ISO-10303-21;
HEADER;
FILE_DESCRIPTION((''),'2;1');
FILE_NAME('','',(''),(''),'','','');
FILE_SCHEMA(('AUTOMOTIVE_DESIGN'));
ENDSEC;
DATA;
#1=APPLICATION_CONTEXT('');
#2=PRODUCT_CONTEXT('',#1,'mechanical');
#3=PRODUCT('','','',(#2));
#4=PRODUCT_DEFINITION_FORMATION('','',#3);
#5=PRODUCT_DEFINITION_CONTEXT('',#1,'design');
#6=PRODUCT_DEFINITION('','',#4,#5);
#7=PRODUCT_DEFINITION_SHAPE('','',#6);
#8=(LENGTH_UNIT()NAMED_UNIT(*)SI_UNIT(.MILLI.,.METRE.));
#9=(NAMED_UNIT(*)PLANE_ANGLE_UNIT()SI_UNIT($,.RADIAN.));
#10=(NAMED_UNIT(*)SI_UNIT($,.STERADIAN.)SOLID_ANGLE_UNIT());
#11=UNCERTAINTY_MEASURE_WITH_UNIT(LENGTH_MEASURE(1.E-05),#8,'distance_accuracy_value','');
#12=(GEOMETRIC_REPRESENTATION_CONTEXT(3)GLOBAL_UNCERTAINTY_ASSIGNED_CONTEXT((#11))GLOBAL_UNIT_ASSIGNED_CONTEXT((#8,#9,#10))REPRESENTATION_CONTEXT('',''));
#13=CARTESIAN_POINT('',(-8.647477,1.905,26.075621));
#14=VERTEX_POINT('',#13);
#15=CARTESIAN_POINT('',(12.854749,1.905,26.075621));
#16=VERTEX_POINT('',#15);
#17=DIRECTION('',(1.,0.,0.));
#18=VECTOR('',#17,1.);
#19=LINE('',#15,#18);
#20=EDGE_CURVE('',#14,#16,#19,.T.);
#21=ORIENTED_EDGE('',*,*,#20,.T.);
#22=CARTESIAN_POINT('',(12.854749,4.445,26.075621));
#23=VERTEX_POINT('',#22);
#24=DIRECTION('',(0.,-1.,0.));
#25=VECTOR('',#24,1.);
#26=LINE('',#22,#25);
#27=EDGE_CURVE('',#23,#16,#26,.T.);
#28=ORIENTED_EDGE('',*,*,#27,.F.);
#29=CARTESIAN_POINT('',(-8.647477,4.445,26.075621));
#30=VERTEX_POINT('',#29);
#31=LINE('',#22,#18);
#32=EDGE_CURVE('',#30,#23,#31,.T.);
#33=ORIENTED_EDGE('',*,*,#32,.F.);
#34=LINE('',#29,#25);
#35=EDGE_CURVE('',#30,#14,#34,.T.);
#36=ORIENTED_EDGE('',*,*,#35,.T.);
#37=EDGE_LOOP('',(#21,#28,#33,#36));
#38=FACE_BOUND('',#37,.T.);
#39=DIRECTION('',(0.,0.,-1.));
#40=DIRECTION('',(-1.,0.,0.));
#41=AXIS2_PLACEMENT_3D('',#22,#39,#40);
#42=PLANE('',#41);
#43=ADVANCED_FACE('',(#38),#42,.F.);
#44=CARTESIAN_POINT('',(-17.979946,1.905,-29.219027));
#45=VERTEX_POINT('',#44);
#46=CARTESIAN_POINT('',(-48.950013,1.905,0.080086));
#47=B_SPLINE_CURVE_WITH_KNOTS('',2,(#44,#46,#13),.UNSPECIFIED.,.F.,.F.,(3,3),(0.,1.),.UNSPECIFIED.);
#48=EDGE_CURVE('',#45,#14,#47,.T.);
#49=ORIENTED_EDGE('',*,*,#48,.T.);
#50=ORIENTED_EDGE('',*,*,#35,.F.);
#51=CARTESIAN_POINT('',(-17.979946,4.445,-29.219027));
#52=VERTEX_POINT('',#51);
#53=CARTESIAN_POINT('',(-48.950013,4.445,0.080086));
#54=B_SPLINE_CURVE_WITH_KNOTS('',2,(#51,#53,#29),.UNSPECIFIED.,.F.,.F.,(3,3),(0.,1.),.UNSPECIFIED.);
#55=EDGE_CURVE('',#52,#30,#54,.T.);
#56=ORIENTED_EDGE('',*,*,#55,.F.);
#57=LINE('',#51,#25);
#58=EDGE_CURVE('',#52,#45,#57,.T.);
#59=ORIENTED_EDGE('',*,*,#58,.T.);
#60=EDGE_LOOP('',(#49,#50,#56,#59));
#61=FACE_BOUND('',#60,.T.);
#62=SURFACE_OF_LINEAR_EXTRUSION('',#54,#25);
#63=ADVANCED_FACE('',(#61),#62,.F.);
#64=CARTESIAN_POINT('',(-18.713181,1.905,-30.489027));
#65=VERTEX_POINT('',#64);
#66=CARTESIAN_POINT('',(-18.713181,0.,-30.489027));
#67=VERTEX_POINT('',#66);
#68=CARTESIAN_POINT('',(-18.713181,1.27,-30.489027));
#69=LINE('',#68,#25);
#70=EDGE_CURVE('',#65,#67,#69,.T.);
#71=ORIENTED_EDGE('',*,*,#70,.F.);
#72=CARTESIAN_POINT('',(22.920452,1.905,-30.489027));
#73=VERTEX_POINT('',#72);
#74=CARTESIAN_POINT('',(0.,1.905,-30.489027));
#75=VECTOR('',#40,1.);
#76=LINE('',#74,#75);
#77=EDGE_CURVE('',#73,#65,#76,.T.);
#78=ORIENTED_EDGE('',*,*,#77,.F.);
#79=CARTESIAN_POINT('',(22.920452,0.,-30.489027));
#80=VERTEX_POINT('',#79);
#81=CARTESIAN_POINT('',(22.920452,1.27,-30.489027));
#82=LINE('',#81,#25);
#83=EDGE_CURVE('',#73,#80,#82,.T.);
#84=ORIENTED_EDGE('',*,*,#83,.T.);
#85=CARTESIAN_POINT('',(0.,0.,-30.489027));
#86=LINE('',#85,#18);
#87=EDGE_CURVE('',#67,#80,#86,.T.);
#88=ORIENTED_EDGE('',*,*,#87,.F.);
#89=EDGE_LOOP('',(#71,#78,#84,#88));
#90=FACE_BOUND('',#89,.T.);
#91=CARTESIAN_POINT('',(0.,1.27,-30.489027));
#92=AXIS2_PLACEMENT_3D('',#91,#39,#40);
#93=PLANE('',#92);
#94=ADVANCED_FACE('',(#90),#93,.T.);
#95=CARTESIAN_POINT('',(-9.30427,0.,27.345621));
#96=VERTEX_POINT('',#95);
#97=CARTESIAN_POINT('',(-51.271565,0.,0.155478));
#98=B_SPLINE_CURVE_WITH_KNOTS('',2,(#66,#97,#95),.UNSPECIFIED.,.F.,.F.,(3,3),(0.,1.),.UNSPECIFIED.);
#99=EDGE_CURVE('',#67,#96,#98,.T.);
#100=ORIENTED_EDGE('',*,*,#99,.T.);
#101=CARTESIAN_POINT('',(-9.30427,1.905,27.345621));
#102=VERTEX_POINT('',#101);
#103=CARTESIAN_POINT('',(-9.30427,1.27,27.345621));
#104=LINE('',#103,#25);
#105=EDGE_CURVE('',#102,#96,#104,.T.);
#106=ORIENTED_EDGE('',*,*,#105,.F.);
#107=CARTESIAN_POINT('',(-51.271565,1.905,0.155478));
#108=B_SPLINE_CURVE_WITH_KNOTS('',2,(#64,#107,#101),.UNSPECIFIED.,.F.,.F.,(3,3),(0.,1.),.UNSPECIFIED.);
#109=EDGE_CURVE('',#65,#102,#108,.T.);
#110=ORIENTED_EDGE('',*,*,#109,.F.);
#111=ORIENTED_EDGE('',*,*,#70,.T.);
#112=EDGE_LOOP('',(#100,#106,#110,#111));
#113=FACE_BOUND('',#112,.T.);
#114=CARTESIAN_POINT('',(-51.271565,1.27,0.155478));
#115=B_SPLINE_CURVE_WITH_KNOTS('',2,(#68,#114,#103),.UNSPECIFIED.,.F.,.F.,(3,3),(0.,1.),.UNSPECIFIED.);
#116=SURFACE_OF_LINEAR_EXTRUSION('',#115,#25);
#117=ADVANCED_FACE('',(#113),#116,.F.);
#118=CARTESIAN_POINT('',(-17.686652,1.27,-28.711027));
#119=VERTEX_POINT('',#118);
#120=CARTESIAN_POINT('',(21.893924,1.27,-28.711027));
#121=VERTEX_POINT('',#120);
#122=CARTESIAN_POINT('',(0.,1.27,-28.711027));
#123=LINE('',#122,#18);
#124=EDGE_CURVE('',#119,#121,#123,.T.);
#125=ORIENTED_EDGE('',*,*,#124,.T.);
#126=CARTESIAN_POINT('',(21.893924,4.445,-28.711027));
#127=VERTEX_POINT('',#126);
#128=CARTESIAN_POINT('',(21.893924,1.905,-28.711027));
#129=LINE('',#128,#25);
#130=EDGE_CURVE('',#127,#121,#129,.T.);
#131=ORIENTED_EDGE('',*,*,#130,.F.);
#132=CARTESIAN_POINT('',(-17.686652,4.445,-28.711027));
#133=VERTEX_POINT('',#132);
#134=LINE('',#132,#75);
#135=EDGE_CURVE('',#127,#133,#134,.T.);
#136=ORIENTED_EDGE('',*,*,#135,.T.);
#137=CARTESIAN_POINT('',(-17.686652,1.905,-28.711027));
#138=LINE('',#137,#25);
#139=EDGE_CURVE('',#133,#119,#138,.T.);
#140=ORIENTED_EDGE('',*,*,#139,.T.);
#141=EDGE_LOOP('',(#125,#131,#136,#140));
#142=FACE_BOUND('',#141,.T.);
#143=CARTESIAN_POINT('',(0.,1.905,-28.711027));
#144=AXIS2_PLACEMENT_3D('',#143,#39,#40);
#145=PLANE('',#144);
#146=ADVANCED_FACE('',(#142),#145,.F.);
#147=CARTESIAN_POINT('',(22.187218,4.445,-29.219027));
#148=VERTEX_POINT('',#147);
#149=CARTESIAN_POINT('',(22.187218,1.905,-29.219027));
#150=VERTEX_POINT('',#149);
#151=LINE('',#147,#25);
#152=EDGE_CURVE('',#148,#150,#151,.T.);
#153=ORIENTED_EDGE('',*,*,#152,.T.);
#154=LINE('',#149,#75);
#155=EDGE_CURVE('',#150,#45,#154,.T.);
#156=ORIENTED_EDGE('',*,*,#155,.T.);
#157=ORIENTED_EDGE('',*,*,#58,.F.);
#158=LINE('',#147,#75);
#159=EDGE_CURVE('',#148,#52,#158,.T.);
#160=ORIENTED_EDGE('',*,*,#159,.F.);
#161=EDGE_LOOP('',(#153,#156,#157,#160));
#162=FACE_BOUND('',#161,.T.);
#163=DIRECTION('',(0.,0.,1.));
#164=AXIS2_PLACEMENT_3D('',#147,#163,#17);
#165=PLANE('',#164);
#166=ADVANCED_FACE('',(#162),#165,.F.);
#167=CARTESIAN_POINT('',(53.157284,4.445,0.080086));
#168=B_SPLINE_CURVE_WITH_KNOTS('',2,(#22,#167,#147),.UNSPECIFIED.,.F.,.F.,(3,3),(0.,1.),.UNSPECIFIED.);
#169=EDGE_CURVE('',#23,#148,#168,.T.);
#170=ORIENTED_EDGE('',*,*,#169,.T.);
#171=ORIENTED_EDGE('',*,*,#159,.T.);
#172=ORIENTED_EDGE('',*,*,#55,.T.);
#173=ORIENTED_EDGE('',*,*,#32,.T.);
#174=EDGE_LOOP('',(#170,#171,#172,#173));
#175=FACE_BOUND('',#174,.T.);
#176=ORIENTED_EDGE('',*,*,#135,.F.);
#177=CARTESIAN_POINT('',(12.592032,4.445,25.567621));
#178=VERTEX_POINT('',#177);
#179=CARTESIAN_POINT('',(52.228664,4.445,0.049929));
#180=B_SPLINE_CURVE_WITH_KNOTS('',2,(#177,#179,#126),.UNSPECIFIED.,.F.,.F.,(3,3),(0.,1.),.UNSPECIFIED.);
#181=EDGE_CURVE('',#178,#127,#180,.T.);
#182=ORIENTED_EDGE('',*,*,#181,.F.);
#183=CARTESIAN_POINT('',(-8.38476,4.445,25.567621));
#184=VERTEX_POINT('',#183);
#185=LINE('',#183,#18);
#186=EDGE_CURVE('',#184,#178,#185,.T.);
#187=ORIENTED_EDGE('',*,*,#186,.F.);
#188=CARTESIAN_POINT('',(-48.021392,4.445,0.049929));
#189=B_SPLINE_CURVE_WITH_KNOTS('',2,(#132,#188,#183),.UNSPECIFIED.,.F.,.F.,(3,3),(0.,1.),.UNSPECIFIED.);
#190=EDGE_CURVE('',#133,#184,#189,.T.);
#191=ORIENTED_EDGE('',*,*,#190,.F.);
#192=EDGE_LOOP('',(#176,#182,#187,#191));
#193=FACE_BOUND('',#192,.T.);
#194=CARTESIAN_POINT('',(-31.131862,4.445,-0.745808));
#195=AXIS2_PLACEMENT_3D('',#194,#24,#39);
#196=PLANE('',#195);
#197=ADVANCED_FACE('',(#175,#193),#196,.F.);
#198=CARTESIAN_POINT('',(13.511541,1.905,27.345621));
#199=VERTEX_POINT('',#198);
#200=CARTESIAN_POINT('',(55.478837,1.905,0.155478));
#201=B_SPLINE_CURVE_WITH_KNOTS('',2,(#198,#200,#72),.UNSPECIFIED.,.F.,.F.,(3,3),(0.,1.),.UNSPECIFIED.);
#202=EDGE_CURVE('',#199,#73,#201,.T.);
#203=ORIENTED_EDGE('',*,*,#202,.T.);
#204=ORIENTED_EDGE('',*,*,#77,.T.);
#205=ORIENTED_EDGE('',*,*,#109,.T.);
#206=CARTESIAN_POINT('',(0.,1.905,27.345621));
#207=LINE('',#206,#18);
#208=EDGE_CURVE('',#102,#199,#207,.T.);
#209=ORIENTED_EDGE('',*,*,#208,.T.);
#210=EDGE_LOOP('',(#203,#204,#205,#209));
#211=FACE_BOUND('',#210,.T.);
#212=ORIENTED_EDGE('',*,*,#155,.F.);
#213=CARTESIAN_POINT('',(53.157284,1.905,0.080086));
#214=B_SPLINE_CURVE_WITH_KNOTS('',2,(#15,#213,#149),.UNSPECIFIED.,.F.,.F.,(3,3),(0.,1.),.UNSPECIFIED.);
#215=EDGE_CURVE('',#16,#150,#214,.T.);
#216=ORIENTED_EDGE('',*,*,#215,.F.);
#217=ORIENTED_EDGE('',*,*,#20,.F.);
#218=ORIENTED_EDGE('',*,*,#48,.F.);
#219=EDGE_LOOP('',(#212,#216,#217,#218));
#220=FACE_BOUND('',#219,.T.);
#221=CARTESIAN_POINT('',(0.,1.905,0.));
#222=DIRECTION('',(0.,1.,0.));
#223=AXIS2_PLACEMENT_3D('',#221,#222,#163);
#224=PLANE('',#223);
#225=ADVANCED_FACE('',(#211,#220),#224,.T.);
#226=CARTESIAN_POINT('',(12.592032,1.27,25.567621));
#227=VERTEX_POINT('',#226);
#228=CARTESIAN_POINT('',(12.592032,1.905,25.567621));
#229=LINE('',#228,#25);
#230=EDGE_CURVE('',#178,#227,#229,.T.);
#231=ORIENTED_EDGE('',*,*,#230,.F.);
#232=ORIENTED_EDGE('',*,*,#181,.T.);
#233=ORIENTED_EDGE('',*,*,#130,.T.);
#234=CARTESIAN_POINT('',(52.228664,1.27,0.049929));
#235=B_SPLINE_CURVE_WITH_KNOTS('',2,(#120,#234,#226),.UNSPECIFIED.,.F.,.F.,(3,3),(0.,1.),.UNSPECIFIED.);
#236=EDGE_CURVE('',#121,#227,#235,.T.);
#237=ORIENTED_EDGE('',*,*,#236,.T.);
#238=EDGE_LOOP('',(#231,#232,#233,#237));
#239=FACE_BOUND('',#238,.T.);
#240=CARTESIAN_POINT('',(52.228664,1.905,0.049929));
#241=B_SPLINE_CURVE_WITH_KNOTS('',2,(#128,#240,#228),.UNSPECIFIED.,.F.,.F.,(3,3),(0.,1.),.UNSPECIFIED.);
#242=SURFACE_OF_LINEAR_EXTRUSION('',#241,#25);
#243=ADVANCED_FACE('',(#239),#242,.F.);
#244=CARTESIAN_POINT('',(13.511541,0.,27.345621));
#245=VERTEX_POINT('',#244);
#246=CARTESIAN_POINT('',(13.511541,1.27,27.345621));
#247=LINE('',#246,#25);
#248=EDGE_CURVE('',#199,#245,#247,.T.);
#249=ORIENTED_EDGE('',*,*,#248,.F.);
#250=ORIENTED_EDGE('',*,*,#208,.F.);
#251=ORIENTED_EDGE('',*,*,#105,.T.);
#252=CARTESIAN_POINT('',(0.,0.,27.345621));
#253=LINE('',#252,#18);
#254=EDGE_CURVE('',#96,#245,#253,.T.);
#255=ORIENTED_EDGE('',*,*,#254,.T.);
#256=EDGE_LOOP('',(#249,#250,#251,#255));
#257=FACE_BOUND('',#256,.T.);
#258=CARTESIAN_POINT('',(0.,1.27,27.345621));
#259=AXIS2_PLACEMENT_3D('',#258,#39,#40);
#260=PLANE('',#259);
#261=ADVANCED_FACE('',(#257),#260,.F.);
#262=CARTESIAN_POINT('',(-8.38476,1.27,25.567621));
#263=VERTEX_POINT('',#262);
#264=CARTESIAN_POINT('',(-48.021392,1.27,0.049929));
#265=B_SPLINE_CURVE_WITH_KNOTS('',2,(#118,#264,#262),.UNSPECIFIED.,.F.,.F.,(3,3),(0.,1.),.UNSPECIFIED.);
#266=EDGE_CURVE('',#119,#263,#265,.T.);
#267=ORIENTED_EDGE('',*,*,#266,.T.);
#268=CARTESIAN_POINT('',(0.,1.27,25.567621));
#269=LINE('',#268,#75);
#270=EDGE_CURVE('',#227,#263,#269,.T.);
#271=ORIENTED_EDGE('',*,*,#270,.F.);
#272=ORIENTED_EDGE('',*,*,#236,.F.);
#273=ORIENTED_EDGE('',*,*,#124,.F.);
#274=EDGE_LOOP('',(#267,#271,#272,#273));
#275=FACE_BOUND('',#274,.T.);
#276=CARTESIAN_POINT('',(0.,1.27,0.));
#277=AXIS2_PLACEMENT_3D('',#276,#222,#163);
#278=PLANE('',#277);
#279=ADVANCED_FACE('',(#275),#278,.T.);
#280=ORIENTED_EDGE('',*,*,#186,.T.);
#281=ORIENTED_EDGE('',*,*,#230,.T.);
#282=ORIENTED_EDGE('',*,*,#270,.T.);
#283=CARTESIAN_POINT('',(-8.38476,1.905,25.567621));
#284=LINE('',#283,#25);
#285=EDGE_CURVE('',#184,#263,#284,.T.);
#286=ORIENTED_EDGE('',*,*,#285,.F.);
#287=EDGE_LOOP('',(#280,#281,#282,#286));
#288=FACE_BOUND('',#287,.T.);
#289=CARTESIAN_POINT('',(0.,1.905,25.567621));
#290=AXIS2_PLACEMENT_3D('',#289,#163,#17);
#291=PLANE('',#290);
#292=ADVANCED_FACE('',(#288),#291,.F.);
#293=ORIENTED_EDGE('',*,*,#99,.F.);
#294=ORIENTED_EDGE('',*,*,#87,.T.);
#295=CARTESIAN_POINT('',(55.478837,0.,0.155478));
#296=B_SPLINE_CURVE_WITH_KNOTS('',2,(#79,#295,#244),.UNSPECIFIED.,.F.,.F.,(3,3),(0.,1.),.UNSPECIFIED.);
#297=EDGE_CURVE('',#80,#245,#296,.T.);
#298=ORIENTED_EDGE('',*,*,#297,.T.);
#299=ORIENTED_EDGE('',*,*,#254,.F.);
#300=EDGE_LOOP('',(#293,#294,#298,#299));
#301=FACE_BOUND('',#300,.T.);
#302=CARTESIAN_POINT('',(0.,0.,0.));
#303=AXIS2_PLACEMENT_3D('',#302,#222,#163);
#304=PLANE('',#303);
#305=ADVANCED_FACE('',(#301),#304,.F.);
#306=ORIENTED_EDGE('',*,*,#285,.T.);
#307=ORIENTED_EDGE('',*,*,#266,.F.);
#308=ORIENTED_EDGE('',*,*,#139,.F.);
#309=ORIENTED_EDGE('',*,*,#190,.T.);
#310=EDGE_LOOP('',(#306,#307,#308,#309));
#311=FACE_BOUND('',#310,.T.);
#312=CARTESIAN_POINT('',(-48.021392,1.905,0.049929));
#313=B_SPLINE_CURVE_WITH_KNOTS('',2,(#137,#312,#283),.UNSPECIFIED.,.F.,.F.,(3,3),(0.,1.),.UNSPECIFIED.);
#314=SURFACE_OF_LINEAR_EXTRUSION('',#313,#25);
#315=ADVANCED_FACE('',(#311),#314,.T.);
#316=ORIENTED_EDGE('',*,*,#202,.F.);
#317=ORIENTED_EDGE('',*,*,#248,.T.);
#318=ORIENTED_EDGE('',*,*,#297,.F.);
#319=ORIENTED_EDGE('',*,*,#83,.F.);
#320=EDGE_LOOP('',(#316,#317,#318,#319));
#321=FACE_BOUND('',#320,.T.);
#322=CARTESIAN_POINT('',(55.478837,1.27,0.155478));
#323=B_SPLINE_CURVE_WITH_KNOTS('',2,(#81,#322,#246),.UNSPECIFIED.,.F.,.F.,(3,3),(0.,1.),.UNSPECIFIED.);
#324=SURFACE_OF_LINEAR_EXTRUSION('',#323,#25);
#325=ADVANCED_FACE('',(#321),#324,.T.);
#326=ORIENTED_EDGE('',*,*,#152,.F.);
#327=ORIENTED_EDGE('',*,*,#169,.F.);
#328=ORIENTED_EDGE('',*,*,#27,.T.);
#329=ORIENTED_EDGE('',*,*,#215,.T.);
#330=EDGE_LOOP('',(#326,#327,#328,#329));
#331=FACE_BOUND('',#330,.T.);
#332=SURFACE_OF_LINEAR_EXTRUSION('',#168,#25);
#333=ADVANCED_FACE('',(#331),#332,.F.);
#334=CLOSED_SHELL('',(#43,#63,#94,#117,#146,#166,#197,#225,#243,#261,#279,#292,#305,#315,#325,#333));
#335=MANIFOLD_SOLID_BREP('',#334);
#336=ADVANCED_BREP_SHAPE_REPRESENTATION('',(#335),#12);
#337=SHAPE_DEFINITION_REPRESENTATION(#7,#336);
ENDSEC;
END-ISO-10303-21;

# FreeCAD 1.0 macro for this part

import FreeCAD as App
import Part
import Sketcher
from FreeCAD import Vector
Q = App.Units.Quantity

doc = App.newDocument("Part")
body = doc.addObject("PartDesign::Body", "Body")

# Sketch on XZ plane
sketch1 = body.newObject("Sketcher::SketchObject", "Sketch")
sketch1.AttachmentSupport = (doc.getObject("XZ_Plane"), [""])
sketch1.MapMode = "FlatFace"
sketch1.addGeometry([
    Part.LineSegment(Vector(-9.30427, 27.345621, 0), Vector(13.511541, 27.345621, 0)),
    Part.BSplineCurve([Vector(22.920452, -30.489027, 0), Vector(55.478837, 0.155478, 0), Vector(13.511541, 27.345621, 0)], [3, 3], [0, 1], False, 2, [1, 1, 1], False),
    Part.LineSegment(Vector(22.920452, -30.489027, 0), Vector(-18.713181, -30.489027, 0)),
    Part.BSplineCurve([Vector(-18.713181, -30.489027, 0), Vector(-51.271565, 0.155478, 0), Vector(-9.30427, 27.345621, 0)], [3, 3], [0, 1], False, 2, [1, 1, 1], False),
], False)
sketch1.addConstraint([
    Sketcher.Constraint("Block", 1),
    Sketcher.Constraint("Block", 3),
    Sketcher.Constraint("Coincident", 0, 2, 1, 2),
    Sketcher.Constraint("Coincident", 1, 1, 2, 1),
    Sketcher.Constraint("Coincident", 2, 2, 3, 1),
    Sketcher.Constraint("Coincident", 3, 2, 0, 1),
])
pad1 = body.newObject("PartDesign::Pad", "Pad")
pad1.Profile = sketch1
pad1.Length = Q("0.05 in")
pad1.Reversed = True

# Sketch on XZ plane
sketch2 = body.newObject("Sketcher::SketchObject", "Sketch001")
sketch2.AttachmentSupport = (doc.getObject("XZ_Plane"), [""])
sketch2.MapMode = "FlatFace"
sketch2.AttachmentOffset = App.Placement(Vector(0, 0, -0.05 * 25.4), App.Rotation())
sketch2.addGeometry([
    Part.LineSegment(Vector(-9.30427, 27.345621, 0), Vector(13.511541, 27.345621, 0)),  # 0
    Part.BSplineCurve([Vector(13.511541, 27.345621, 0), Vector(55.478837, 0.155478, 0), Vector(22.920452, -30.489027, 0)], [3, 3], [0, 1], False, 2, [1, 1, 1], False),  # 1
    Part.LineSegment(Vector(22.920452, -30.489027, 0), Vector(-18.713181, -30.489027, 0)),  # 2
    Part.BSplineCurve([Vector(-18.713181, -30.489027, 0), Vector(-51.271565, 0.155478, 0), Vector(-9.30427, 27.345621, 0)], [3, 3], [0, 1], False, 2, [1, 1, 1], False),  # 3
    Part.BSplineCurve([Vector(21.893924, -28.711027, 0), Vector(52.228664, 0.049929, 0), Vector(12.592032, 25.567621, 0)], [3, 3], [0, 1], False, 2, [1, 1, 1], False),  # 4
    Part.LineSegment(Vector(12.592032, 25.567621, 0), Vector(-8.38476, 25.567621, 0)),  # 5
    Part.BSplineCurve([Vector(-17.686652, -28.711027, 0), Vector(-48.021392, 0.049929, 0), Vector(-8.38476, 25.567621, 0)], [3, 3], [0, 1], False, 2, [1, 1, 1], False),  # 6
    Part.LineSegment(Vector(-17.686652, -28.711027, 0), Vector(21.893924, -28.711027, 0)),  # 7
], False)
sketch2.addConstraint([
    Sketcher.Constraint("Block", 1),
    Sketcher.Constraint("Block", 3),
    Sketcher.Constraint("Block", 4),
    Sketcher.Constraint("Block", 6),
    Sketcher.Constraint("Coincident", 0, 2, 1, 1),
    Sketcher.Constraint("Coincident", 1, 2, 2, 1),
    Sketcher.Constraint("Coincident", 2, 2, 3, 1),
    Sketcher.Constraint("Coincident", 3, 2, 0, 1),
    Sketcher.Constraint("Coincident", 4, 2, 5, 1),
    Sketcher.Constraint("Coincident", 5, 2, 6, 2),
    Sketcher.Constraint("Coincident", 6, 1, 7, 1),
    Sketcher.Constraint("Coincident", 7, 2, 4, 1),
])
pad2 = body.newObject("PartDesign::Pad", "Pad001")
pad2.Profile = sketch2
pad2.Length = Q("0.025 in")
pad2.Reversed = True

# Sketch on XZ plane
sketch3 = body.newObject("Sketcher::SketchObject", "Sketch002")
sketch3.AttachmentSupport = (doc.getObject("XZ_Plane"), [""])
sketch3.MapMode = "FlatFace"
sketch3.AttachmentOffset = App.Placement(Vector(0, 0, -0.075 * 25.4), App.Rotation())
sketch3.addGeometry([
    Part.LineSegment(Vector(22.187218, -29.219027, 0), Vector(-17.979946, -29.219027, 0)),  # 0
    Part.BSplineCurve([Vector(-17.979946, -29.219027, 0), Vector(-48.950013, 0.080086, 0), Vector(-8.647477, 26.075621, 0)], [3, 3], [0, 1], False, 2, [1, 1, 1], False),  # 1
    Part.LineSegment(Vector(-8.647477, 26.075621, 0), Vector(12.854749, 26.075621, 0)),  # 2
    Part.BSplineCurve([Vector(22.187218, -29.219027, 0), Vector(53.157284, 0.080086, 0), Vector(12.854749, 26.075621, 0)], [3, 3], [0, 1], False, 2, [1, 1, 1], False),  # 3
    Part.BSplineCurve([Vector(-17.686652, -28.711027, 0), Vector(-48.021392, 0.049929, 0), Vector(-8.38476, 25.567621, 0)], [3, 3], [0, 1], False, 2, [1, 1, 1], False),  # 4
    Part.LineSegment(Vector(-17.686652, -28.711027, 0), Vector(21.893924, -28.711027, 0)),  # 5
    Part.BSplineCurve([Vector(12.592032, 25.567621, 0), Vector(52.228664, 0.049929, 0), Vector(21.893924, -28.711027, 0)], [3, 3], [0, 1], False, 2, [1, 1, 1], False),  # 6
    Part.LineSegment(Vector(12.592032, 25.567621, 0), Vector(-8.38476, 25.567621, 0)),  # 7
], False)
sketch3.addConstraint([
    Sketcher.Constraint("Block", 1),
    Sketcher.Constraint("Block", 3),
    Sketcher.Constraint("Block", 4),
    Sketcher.Constraint("Block", 6),
    Sketcher.Constraint("Coincident", 0, 2, 1, 1),
    Sketcher.Constraint("Coincident", 1, 2, 2, 1),
    Sketcher.Constraint("Coincident", 2, 2, 3, 2),
    Sketcher.Constraint("Coincident", 3, 1, 0, 1),
    Sketcher.Constraint("Coincident", 4, 1, 5, 1),
    Sketcher.Constraint("Coincident", 5, 2, 6, 2),
    Sketcher.Constraint("Coincident", 6, 1, 7, 1),
    Sketcher.Constraint("Coincident", 7, 2, 4, 2),
])
pad3 = body.newObject("PartDesign::Pad", "Pad002")
pad3.Profile = sketch3
pad3.Length = Q("0.1 in")
pad3.Reversed = True

doc.recompute()
